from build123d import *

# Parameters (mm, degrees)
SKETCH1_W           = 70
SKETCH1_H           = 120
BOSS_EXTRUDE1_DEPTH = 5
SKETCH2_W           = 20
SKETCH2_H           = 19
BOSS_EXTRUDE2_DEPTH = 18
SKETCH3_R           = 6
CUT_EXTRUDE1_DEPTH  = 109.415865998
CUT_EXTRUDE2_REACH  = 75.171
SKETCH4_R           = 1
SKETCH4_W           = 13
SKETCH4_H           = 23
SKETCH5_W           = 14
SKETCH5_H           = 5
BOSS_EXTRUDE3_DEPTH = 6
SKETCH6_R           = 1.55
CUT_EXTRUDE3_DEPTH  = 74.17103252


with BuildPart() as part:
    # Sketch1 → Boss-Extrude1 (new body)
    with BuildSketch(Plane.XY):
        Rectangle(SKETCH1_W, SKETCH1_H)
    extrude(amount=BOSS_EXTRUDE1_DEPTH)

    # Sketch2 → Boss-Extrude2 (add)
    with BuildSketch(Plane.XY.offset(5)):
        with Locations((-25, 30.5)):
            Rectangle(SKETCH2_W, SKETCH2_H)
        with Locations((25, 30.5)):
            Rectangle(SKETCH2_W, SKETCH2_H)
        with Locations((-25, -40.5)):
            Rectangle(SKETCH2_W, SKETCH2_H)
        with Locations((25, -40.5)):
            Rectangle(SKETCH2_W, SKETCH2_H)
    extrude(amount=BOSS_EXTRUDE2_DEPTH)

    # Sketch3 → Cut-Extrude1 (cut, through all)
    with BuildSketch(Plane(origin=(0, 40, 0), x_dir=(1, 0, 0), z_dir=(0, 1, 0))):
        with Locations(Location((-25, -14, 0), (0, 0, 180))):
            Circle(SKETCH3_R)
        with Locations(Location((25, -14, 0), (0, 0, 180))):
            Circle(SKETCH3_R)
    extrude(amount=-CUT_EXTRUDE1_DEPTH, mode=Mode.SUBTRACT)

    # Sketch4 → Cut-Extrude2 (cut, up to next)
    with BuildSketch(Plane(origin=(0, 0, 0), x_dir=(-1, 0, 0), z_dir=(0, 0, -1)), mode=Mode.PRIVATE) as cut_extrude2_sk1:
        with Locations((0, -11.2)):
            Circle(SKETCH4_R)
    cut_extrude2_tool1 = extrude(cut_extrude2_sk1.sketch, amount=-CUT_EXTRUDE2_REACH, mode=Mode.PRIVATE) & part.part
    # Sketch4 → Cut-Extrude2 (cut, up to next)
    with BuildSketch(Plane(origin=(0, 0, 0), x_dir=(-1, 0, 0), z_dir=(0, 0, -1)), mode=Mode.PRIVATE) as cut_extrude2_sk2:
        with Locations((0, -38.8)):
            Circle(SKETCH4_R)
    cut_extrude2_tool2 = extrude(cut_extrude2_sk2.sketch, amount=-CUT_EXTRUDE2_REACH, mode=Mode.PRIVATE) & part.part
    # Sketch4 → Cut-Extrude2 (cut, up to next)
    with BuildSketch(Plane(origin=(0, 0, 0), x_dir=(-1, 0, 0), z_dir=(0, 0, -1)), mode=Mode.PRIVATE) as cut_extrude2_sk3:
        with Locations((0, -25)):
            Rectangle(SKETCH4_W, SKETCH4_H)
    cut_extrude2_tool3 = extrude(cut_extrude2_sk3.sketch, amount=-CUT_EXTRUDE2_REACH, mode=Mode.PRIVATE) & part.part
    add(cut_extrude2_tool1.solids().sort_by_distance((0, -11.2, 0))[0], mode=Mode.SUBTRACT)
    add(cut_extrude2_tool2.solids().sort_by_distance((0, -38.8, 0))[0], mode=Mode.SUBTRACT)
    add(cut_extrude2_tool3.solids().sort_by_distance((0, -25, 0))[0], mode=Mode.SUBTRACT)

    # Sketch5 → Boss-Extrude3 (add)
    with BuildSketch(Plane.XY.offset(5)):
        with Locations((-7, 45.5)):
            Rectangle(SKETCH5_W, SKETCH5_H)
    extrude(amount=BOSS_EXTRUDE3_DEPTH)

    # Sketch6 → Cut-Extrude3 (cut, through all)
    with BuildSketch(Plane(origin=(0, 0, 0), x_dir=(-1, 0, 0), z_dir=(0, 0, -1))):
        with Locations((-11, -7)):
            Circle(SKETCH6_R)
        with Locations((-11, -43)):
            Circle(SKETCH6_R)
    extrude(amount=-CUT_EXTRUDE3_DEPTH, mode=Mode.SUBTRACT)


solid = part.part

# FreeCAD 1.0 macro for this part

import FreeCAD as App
import Part
import Sketcher
from FreeCAD import Vector


def add_polygon(sketch, points):
    """Adds a closed chain of lines whose ends are joined by coincident constraints."""
    first, n = sketch.GeometryCount, len(points)
    for a, b in zip(points, points[1:] + points[:1]):
        sketch.addGeometry(Part.LineSegment(App.Vector(*a, 0), App.Vector(*b, 0)), False)
    for i in range(n):
        sketch.addConstraint(Sketcher.Constraint("Coincident", first + i, 2, first + (i + 1) % n, 1))

doc = App.newDocument("Part")
body = doc.addObject("PartDesign::Body", "Body")

# Sketch on XY plane
sketch1 = doc.addObject("Sketcher::SketchObject", "Sketch")
body.addObject(sketch1)
sketch1.AttachmentSupport = (doc.XY_Plane, [""])
sketch1.MapMode = "FlatFace"
add_polygon(sketch1, [(-35, 60), (-35, -60), (35, -60), (35, 60)])  # lines 0-3
sketch1.addConstraint(Sketcher.Constraint("Vertical", 0))
sketch1.addConstraint(Sketcher.Constraint("Horizontal", 1))
sketch1.addConstraint(Sketcher.Constraint("Vertical", 2))
sketch1.addConstraint(Sketcher.Constraint("Horizontal", 3))
sketch1.addConstraint(Sketcher.Constraint("Symmetric", 0, 2, 2, 2, -1, 1))
sketch1.addConstraint(Sketcher.Constraint("DistanceX", 1, 1, 1, 2, 70.0))
sketch1.addConstraint(Sketcher.Constraint("DistanceY", 0, 2, 0, 1, 120.0))
pad1 = doc.addObject("PartDesign::Pad", "Pad")
body.addObject(pad1)
pad1.Profile = sketch1
pad1.Length = 5

# Sketch on XY plane
sketch2 = doc.addObject("Sketcher::SketchObject", "Sketch001")
body.addObject(sketch2)
sketch2.AttachmentSupport = (doc.XY_Plane, [""])
sketch2.MapMode = "FlatFace"
sketch2.AttachmentOffset = App.Placement(Vector(0, 0, 5), App.Rotation())
add_polygon(sketch2, [(-35, 40), (-35, 21), (-15, 21), (-15, 40)])  # lines 0-3
add_polygon(sketch2, [(15, 40), (15, 21), (35, 21), (35, 40)])  # lines 4-7
add_polygon(sketch2, [(-35, -31), (-35, -50), (-15, -50), (-15, -31)])  # lines 8-11
add_polygon(sketch2, [(15, -31), (15, -50), (35, -50), (35, -31)])  # lines 12-15
sketch2.addConstraint(Sketcher.Constraint("Vertical", 0))
sketch2.addConstraint(Sketcher.Constraint("Horizontal", 1))
sketch2.addConstraint(Sketcher.Constraint("Vertical", 2))
sketch2.addConstraint(Sketcher.Constraint("Horizontal", 3))
sketch2.addConstraint(Sketcher.Constraint("Vertical", 4))
sketch2.addConstraint(Sketcher.Constraint("Horizontal", 5))
sketch2.addConstraint(Sketcher.Constraint("Vertical", 6))
sketch2.addConstraint(Sketcher.Constraint("Horizontal", 7))
sketch2.addConstraint(Sketcher.Constraint("Vertical", 8))
sketch2.addConstraint(Sketcher.Constraint("Horizontal", 9))
sketch2.addConstraint(Sketcher.Constraint("Vertical", 10))
sketch2.addConstraint(Sketcher.Constraint("Horizontal", 11))
sketch2.addConstraint(Sketcher.Constraint("Vertical", 12))
sketch2.addConstraint(Sketcher.Constraint("Horizontal", 13))
sketch2.addConstraint(Sketcher.Constraint("Vertical", 14))
sketch2.addConstraint(Sketcher.Constraint("Horizontal", 15))
sketch2.addConstraint(Sketcher.Constraint("Symmetric", 1, 2, 4, 2, -2))
sketch2.addConstraint(Sketcher.Constraint("Symmetric", 3, 2, 6, 2, -2))
sketch2.addConstraint(Sketcher.Constraint("Symmetric", 9, 2, 12, 2, -2))
sketch2.addConstraint(Sketcher.Constraint("Symmetric", 11, 2, 14, 2, -2))
sketch2.addConstraint(Sketcher.Constraint("Vertical", 3, 2, 8, 2))
sketch2.addConstraint(Sketcher.Constraint("Vertical", 2, 2, 9, 2))
sketch2.addConstraint(Sketcher.Constraint("Equal", 6, 8))
sketch2.addConstraint(Sketcher.Constraint("DistanceX", 1, 1, 1, 2, 20.0))
sketch2.addConstraint(Sketcher.Constraint("DistanceY", 0, 2, 0, 1, 19.0))
sketch2.addConstraint(Sketcher.Constraint("DistanceX", 0, 2, -1, 1, 35.0))
sketch2.addConstraint(Sketcher.Constraint("DistanceY", -1, 1, 0, 2, 21.0))
sketch2.addConstraint(Sketcher.Constraint("DistanceY", 8, 2, -1, 1, 50.0))
pad2 = doc.addObject("PartDesign::Pad", "Pad001")
body.addObject(pad2)
pad2.Profile = sketch2
pad2.Length = 18

# Sketch on XZ plane
sketch3 = doc.addObject("Sketcher::SketchObject", "Sketch002")
body.addObject(sketch3)
sketch3.AttachmentSupport = (doc.XZ_Plane, [""])
sketch3.MapMode = "FlatFace"
sketch3.AttachmentOffset = App.Placement(Vector(0, 0, -40), App.Rotation())
sketch3.addGeometry(Part.Circle(Vector(-25, 14, 0), Vector(0, 0, 1), 6), False)
sketch3.addGeometry(Part.Circle(Vector(25, 14, 0), Vector(0, 0, 1), 6), False)
sketch3.addConstraint(Sketcher.Constraint("Equal", 0, 1))
sketch3.addConstraint(Sketcher.Constraint("Symmetric", 0, 3, 1, 3, -2))
sketch3.addConstraint(Sketcher.Constraint("Diameter", 0, 12.0))
sketch3.addConstraint(Sketcher.Constraint("DistanceX", 0, 3, -1, 1, 25.0))
sketch3.addConstraint(Sketcher.Constraint("DistanceY", -1, 1, 0, 3, 14.0))
pocket1 = doc.addObject("PartDesign::Pocket", "Pocket")
body.addObject(pocket1)
pocket1.Profile = sketch3
pocket1.Type = "ThroughAll"
pocket1.Reversed = True

# Sketch on XY plane
sketch4 = doc.addObject("Sketcher::SketchObject", "Sketch003")
body.addObject(sketch4)
sketch4.AttachmentSupport = (doc.XY_Plane, [""])
sketch4.MapMode = "FlatFace"
sketch4.addGeometry(Part.Circle(Vector(0, -11.2, 0), Vector(0, 0, 1), 1), False)
sketch4.addConstraint(Sketcher.Constraint("PointOnObject", 0, 3, -2))
sketch4.addConstraint(Sketcher.Constraint("Diameter", 0, 2.0))
sketch4.addConstraint(Sketcher.Constraint("DistanceY", 0, 3, -1, 1, 11.2))
pocket2 = doc.addObject("PartDesign::Pocket", "Pocket001")
body.addObject(pocket2)
pocket2.Profile = sketch4
pocket2.Type = "UpToFirst"
pocket2.Reversed = True

# Sketch on XY plane
sketch5 = doc.addObject("Sketcher::SketchObject", "Sketch004")
body.addObject(sketch5)
sketch5.AttachmentSupport = (doc.XY_Plane, [""])
sketch5.MapMode = "FlatFace"
sketch5.addGeometry(Part.Circle(Vector(0, -38.8, 0), Vector(0, 0, 1), 1), False)
sketch5.addConstraint(Sketcher.Constraint("PointOnObject", 0, 3, -2))
sketch5.addConstraint(Sketcher.Constraint("Diameter", 0, 2.0))
sketch5.addConstraint(Sketcher.Constraint("DistanceY", 0, 3, -1, 1, 38.8))
pocket3 = doc.addObject("PartDesign::Pocket", "Pocket002")
body.addObject(pocket3)
pocket3.Profile = sketch5
pocket3.Type = "UpToFirst"
pocket3.Reversed = True

# Sketch on XY plane
sketch6 = doc.addObject("Sketcher::SketchObject", "Sketch005")
body.addObject(sketch6)
sketch6.AttachmentSupport = (doc.XY_Plane, [""])
sketch6.MapMode = "FlatFace"
add_polygon(sketch6, [(6, -14), (6, -36), (-6, -36), (-6, -14)])  # lines 0-3
sketch6.addConstraint(Sketcher.Constraint("Vertical", 0))
sketch6.addConstraint(Sketcher.Constraint("Horizontal", 1))
sketch6.addConstraint(Sketcher.Constraint("Vertical", 2))
sketch6.addConstraint(Sketcher.Constraint("Horizontal", 3))
sketch6.addConstraint(Sketcher.Constraint("DistanceX", 1, 2, 1, 1, 13.0))
sketch6.addConstraint(Sketcher.Constraint("DistanceY", 0, 2, 0, 1, 23.0))
sketch6.addConstraint(Sketcher.Constraint("DistanceX", -1, 1, 0, 2, 6.5))
sketch6.addConstraint(Sketcher.Constraint("DistanceY", 0, 2, -1, 1, 36.5))
pocket4 = doc.addObject("PartDesign::Pocket", "Pocket003")
body.addObject(pocket4)
pocket4.Profile = sketch6
pocket4.Type = "UpToFirst"
pocket4.Reversed = True

# Sketch on XY plane
sketch7 = doc.addObject("Sketcher::SketchObject", "Sketch006")
body.addObject(sketch7)
sketch7.AttachmentSupport = (doc.XY_Plane, [""])
sketch7.MapMode = "FlatFace"
sketch7.AttachmentOffset = App.Placement(Vector(0, 0, 5), App.Rotation())
add_polygon(sketch7, [(-14, 48), (-14, 43), (0, 43), (0, 48)])  # lines 0-3
sketch7.addConstraint(Sketcher.Constraint("Vertical", 0))
sketch7.addConstraint(Sketcher.Constraint("Horizontal", 1))
sketch7.addConstraint(Sketcher.Constraint("Vertical", 2))
sketch7.addConstraint(Sketcher.Constraint("Horizontal", 3))
sketch7.addConstraint(Sketcher.Constraint("PointOnObject", 1, 2, -2))
sketch7.addConstraint(Sketcher.Constraint("DistanceX", 1, 1, 1, 2, 14.0))
sketch7.addConstraint(Sketcher.Constraint("DistanceY", 0, 2, 0, 1, 5.0))
sketch7.addConstraint(Sketcher.Constraint("DistanceY", -1, 1, 0, 2, 43.0))
pad3 = doc.addObject("PartDesign::Pad", "Pad002")
body.addObject(pad3)
pad3.Profile = sketch7
pad3.Length = 6

# Sketch on XY plane
sketch8 = doc.addObject("Sketcher::SketchObject", "Sketch007")
body.addObject(sketch8)
sketch8.AttachmentSupport = (doc.XY_Plane, [""])
sketch8.MapMode = "FlatFace"
sketch8.addGeometry(Part.Circle(Vector(11, -7, 0), Vector(0, 0, 1), 1.6), False)
sketch8.addGeometry(Part.Circle(Vector(11, -43, 0), Vector(0, 0, 1), 1.6), False)
sketch8.addConstraint(Sketcher.Constraint("Equal", 0, 1))
sketch8.addConstraint(Sketcher.Constraint("Vertical", 0, 3, 1, 3))
sketch8.addConstraint(Sketcher.Constraint("Diameter", 0, 3.1))
sketch8.addConstraint(Sketcher.Constraint("DistanceX", -1, 1, 0, 3, 11.0))
sketch8.addConstraint(Sketcher.Constraint("DistanceY", 0, 3, -1, 1, 7.0))
sketch8.addConstraint(Sketcher.Constraint("DistanceY", 1, 3, -1, 1, 43.0))
pocket5 = doc.addObject("PartDesign::Pocket", "Pocket004")
body.addObject(pocket5)
pocket5.Profile = sketch8
pocket5.Type = "ThroughAll"
pocket5.Reversed = True

doc.recompute()
